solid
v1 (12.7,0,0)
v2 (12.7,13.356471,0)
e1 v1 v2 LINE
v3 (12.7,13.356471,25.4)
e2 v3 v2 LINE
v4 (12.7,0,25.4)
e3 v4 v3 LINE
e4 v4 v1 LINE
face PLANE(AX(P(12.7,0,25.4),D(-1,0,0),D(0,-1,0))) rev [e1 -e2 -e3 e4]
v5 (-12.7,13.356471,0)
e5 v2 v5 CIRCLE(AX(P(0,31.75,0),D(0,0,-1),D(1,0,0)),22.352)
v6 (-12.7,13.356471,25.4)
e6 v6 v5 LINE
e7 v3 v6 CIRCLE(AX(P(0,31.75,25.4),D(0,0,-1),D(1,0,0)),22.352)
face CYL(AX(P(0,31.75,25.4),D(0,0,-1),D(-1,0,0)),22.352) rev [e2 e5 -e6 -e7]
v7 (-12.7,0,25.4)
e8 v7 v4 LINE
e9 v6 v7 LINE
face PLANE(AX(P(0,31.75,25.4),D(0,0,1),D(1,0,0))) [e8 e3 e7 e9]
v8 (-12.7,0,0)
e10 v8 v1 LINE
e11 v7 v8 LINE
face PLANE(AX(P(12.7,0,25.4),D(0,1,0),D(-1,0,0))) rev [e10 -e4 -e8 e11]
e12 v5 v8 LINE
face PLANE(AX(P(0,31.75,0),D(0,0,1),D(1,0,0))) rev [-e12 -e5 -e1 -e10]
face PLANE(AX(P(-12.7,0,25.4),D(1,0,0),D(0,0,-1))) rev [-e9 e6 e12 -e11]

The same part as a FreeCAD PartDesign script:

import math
import FreeCAD as App
import Part
import Sketcher
Q = App.Units.Quantity

doc = App.newDocument("Part")
params = doc.addObject("Spreadsheet::Sheet", "Params")
for row, (alias, value) in enumerate([
    ("sketch1_width", "1 in"),
    ("sketch1_radius", "0.88 in"),
    ("pad1_length", "1 in"),
], start=1):
    params.set(f"A{row}", alias)
    params.set(f"B{row}", "=" + value)
    params.setAlias(f"B{row}", alias)

body = doc.addObject("PartDesign::Body", "Body")

sketch1 = body.newObject("Sketcher::SketchObject", "Sketch")
sketch1.AttachmentSupport = (doc.getObject("XY_Plane"), [""])
sketch1.MapMode = "FlatFace"
sketch1.addGeometry(Part.LineSegment(App.Vector(-12.7, 0, 0), App.Vector(12.7, 0, 0)), False)
sketch1.addGeometry(Part.LineSegment(App.Vector(12.7, 0, 0), App.Vector(12.7, 13.356471, 0)), False)
sketch1.addGeometry(Part.ArcOfCircle(Part.Circle(App.Vector(0, 31.75, 0), App.Vector(0, 0, 1), 22.352), math.radians(-124.623535), math.radians(-55.376465)), False)
sketch1.addGeometry(Part.LineSegment(App.Vector(-12.7, 13.356471, 0), App.Vector(-12.7, 0, 0)), False)
sketch1.addConstraint(Sketcher.Constraint("Coincident", 0, 2, 1, 1))
sketch1.addConstraint(Sketcher.Constraint("Coincident", 1, 2, 2, 2))
sketch1.addConstraint(Sketcher.Constraint("Coincident", 2, 1, 3, 1))
sketch1.addConstraint(Sketcher.Constraint("Coincident", 3, 2, 0, 1))
sketch1.addConstraint(Sketcher.Constraint("Horizontal", 0))
sketch1.addConstraint(Sketcher.Constraint("Vertical", 1))
sketch1.addConstraint(Sketcher.Constraint("Vertical", 3))
sketch1.addConstraint(Sketcher.Constraint("Symmetric", 0, 2, 3, 2, -1, 1))
sketch1.addConstraint(Sketcher.Constraint("PointOnObject", 2, 3, -2))
sketch1.addConstraint(Sketcher.Constraint("DistanceX", 0, 1, 0, 2, Q("1 in")))
sketch1.addConstraint(Sketcher.Constraint("Radius", 2, Q("0.88 in")))
sketch1.addConstraint(Sketcher.Constraint("DistanceY", -1, 1, 2, 3, Q("1.25 in")))
sketch1.setExpression("Constraints[9]", "Params.sketch1_width")
sketch1.setExpression("Constraints[10]", "Params.sketch1_radius")
pad1 = body.newObject("PartDesign::Pad", "Pad")
pad1.Profile = sketch1
pad1.setExpression("Length", "Params.pad1_length")

doc.recompute()
